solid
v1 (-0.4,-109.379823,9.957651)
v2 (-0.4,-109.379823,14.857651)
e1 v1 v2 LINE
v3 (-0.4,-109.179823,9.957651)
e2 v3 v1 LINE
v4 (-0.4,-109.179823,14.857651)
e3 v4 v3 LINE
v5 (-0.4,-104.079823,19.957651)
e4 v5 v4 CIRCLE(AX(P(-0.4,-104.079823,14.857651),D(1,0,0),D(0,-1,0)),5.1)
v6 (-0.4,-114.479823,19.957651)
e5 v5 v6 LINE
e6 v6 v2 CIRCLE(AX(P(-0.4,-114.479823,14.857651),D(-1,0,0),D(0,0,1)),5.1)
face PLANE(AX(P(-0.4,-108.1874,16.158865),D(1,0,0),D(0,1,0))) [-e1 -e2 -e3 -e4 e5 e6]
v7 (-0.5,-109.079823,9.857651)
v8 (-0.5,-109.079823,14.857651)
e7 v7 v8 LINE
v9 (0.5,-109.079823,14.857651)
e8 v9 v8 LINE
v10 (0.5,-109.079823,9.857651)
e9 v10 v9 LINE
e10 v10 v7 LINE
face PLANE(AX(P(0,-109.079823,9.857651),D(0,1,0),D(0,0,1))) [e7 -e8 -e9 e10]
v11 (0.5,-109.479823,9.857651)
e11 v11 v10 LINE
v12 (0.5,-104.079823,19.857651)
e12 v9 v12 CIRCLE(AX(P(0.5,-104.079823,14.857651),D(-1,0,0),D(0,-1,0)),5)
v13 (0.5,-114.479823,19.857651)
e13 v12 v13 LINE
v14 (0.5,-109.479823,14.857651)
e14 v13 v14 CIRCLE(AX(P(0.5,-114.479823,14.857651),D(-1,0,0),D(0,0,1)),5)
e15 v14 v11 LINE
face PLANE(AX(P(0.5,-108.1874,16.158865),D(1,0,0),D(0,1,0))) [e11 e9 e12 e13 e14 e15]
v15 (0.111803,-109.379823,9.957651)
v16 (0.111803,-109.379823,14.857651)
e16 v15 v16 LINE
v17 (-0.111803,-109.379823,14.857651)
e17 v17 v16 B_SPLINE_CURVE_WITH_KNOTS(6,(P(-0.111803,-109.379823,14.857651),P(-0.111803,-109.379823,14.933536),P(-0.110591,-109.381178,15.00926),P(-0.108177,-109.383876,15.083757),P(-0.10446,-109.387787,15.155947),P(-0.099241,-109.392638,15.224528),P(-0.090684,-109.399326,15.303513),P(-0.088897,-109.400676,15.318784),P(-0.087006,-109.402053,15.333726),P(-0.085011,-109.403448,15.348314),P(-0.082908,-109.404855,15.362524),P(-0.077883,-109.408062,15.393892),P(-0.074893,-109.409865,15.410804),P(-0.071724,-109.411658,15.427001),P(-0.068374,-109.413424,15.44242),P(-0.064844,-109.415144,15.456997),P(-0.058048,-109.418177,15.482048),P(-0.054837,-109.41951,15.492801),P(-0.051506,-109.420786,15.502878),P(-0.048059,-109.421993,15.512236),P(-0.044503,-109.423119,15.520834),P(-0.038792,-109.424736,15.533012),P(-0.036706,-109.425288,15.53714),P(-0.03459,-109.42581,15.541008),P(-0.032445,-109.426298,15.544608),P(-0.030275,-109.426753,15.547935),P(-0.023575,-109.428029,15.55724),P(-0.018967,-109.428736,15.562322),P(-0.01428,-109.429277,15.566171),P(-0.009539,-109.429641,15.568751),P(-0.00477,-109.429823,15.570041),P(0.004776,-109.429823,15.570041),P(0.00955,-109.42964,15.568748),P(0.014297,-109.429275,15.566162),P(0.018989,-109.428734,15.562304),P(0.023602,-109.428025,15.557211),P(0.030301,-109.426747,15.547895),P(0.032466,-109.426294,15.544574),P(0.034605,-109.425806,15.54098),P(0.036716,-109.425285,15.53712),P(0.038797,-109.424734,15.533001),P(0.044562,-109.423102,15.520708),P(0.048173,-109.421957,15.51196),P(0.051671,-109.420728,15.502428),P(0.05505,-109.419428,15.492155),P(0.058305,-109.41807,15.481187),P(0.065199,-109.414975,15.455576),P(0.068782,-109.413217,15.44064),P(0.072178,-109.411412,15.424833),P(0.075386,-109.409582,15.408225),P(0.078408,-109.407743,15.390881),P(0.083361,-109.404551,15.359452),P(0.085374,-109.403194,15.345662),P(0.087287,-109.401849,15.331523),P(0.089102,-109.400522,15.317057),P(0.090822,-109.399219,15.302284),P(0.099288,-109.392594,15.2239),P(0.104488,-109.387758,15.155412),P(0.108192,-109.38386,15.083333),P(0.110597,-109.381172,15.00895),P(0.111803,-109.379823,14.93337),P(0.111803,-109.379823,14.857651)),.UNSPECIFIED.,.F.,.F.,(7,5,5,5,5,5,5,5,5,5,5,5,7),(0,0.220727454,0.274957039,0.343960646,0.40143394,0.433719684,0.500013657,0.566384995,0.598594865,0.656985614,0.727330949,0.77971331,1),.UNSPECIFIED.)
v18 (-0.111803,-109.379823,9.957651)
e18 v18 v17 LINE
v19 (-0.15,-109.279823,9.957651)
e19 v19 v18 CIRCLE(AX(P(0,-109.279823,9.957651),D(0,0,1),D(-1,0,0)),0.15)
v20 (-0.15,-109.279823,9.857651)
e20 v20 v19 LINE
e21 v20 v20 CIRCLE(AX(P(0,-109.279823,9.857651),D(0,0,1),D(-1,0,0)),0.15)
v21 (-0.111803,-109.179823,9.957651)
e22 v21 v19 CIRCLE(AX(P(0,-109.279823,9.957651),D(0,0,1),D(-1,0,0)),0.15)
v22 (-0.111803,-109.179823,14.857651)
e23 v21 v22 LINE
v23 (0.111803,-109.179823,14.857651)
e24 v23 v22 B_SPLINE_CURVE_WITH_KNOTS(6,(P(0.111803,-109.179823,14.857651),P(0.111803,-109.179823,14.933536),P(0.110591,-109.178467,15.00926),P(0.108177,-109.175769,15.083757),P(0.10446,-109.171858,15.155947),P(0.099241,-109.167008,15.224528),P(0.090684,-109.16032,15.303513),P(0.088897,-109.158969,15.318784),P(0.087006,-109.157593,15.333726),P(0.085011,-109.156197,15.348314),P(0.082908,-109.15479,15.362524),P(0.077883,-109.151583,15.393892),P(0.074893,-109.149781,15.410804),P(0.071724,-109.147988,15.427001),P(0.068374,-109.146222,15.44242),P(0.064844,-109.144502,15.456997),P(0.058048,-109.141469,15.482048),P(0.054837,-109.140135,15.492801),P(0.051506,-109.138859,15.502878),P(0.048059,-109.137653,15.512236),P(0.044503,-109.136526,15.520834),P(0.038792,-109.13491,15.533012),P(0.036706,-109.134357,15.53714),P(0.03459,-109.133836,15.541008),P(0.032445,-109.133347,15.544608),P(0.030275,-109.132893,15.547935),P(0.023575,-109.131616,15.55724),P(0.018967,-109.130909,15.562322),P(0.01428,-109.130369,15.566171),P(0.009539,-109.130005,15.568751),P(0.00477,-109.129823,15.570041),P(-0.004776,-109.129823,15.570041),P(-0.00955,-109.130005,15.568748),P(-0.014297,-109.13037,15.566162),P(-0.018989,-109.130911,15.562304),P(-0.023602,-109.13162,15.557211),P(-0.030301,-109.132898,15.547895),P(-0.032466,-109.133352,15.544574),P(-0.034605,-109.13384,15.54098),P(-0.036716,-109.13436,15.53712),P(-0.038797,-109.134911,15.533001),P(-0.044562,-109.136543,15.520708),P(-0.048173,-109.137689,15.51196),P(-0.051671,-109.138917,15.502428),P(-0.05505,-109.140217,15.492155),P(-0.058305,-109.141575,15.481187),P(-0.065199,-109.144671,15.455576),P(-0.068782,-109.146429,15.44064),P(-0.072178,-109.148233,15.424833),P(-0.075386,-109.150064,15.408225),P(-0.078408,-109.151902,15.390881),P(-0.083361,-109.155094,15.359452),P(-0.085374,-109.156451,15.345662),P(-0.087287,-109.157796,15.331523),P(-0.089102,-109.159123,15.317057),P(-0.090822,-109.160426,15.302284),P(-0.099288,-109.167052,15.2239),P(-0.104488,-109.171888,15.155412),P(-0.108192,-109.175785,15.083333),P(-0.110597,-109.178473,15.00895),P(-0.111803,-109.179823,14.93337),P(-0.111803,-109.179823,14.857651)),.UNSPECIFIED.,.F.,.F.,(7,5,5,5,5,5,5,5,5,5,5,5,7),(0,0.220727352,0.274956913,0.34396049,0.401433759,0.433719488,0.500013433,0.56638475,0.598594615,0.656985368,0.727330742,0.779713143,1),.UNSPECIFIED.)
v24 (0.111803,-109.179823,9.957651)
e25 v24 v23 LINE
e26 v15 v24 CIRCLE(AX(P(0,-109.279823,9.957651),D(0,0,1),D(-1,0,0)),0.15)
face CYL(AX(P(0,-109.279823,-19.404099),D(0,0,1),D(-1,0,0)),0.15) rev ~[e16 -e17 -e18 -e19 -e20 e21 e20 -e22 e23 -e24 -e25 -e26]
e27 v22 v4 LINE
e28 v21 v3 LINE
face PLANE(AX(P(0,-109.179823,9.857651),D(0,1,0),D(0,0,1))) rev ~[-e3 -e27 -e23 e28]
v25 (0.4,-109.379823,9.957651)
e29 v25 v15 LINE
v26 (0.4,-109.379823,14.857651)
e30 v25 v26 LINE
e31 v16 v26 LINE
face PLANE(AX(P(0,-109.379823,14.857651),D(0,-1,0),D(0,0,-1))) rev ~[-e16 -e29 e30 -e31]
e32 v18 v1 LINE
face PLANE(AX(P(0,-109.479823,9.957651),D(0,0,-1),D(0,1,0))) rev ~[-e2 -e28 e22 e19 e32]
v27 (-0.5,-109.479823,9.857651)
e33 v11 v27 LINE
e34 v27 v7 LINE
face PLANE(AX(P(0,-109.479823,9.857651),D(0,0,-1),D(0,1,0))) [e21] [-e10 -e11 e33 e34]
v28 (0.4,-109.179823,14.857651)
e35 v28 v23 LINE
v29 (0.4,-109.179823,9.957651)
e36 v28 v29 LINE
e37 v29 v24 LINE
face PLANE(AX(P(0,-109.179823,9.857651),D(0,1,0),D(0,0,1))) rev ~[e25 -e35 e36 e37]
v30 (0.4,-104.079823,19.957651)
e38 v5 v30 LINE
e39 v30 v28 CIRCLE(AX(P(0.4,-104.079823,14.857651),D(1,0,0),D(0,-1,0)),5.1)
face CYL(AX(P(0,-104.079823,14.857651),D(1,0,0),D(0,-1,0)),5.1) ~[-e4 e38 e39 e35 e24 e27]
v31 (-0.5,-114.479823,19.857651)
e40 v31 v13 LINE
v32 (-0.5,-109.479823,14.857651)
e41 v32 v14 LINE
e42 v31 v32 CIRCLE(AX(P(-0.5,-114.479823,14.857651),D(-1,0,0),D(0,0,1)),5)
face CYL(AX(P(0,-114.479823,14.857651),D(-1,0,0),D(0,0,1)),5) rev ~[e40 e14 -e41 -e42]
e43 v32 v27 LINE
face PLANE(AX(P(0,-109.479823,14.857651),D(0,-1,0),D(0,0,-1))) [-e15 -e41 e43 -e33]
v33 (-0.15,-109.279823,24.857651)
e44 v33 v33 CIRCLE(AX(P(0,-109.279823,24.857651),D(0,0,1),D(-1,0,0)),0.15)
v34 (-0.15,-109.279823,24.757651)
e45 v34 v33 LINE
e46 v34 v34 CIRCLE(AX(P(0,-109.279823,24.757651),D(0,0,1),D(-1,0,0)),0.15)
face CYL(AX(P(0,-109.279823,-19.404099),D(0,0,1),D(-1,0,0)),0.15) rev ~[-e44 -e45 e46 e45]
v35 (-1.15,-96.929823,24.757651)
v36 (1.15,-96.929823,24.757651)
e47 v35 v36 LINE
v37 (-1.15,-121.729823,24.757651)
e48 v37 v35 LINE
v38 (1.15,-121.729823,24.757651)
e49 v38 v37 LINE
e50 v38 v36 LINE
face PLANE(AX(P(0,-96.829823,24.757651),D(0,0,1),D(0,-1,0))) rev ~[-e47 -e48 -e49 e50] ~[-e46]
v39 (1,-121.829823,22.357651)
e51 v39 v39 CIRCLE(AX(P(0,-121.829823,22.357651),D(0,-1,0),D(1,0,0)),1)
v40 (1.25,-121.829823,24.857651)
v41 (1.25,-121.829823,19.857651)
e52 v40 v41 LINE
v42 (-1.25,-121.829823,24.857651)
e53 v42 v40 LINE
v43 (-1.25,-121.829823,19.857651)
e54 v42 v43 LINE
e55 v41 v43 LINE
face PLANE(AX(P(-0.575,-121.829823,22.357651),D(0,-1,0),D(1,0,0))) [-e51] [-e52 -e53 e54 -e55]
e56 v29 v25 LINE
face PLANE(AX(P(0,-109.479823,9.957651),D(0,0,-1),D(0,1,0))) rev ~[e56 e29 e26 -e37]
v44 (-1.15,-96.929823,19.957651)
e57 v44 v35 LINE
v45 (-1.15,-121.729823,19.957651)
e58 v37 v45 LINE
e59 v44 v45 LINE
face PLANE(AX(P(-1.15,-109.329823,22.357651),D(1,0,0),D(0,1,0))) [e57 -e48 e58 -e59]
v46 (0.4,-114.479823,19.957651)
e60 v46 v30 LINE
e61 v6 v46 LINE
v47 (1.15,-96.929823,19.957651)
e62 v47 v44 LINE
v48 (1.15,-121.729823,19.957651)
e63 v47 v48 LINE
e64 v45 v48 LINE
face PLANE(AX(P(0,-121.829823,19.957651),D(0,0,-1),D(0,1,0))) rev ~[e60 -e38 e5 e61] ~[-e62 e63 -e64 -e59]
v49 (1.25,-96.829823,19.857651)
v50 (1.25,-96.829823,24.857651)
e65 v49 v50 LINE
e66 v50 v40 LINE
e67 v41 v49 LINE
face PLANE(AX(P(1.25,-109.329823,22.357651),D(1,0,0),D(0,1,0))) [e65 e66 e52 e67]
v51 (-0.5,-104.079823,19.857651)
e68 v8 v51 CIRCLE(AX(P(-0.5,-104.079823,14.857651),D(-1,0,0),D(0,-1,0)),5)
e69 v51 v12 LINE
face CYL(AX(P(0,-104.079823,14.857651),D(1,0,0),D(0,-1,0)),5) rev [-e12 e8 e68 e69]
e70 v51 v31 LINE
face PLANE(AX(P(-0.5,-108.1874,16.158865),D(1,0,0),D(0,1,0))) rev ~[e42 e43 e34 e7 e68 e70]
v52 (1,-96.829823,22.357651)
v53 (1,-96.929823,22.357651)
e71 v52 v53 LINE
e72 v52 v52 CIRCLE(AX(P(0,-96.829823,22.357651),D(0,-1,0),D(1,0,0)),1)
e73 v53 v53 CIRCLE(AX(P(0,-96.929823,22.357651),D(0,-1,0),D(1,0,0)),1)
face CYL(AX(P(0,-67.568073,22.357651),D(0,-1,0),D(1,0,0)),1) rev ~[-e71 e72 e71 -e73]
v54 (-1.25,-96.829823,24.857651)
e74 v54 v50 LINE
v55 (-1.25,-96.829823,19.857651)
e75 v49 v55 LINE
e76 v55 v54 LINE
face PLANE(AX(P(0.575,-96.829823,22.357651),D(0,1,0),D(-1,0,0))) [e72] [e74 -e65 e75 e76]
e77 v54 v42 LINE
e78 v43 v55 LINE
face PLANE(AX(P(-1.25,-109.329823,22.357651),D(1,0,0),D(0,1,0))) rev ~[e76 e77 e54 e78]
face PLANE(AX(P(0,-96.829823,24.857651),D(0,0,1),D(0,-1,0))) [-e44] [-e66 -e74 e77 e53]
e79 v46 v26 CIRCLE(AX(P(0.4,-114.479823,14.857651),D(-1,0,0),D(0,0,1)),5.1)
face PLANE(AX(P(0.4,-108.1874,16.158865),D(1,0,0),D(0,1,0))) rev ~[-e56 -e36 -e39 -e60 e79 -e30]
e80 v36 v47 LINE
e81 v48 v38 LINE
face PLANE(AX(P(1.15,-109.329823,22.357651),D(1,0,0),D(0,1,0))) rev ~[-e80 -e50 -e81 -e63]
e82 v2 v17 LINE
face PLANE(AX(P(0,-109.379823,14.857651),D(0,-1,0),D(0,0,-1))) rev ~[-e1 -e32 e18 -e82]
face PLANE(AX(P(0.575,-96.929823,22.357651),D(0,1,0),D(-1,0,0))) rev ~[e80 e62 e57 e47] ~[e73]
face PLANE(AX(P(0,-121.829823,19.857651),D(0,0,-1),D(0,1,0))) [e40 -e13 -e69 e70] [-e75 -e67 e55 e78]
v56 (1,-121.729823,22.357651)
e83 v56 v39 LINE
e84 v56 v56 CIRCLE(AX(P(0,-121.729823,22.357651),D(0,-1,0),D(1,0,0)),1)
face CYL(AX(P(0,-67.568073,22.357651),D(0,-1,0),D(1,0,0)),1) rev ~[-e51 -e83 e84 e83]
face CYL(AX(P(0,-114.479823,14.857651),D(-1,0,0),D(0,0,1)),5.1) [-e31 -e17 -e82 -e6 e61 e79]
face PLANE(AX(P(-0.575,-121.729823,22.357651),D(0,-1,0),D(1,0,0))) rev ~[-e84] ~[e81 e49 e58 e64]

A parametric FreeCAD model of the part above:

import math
import FreeCAD as App
import Part
import Sketcher

V = App.Vector


def faces_at(feature, points):
    """Names of the faces that lie closest to the given points."""
    faces = feature.Shape.Faces
    near = lambda p: min(range(len(faces)), key=lambda i: faces[i].distToShape(Part.Vertex(*p))[0])
    return sorted({f"Face{near(p) + 1}" for p in points})

doc = App.newDocument("Part")
body = doc.addObject("PartDesign::Body", "Body")

sketch1 = doc.addObject("Sketcher::SketchObject", "Sketch")
body.addObject(sketch1)
sketch1.AttachmentSupport = (doc.YZ_Plane, [""])
sketch1.MapMode = "FlatFace"
sketch1.addGeometry([
    Part.LineSegment(V(-97, 20, 0), V(-97, 25, 0)),
    Part.LineSegment(V(-97, 25, 0), V(-122, 25, 0)),
    Part.LineSegment(V(-122, 25, 0), V(-122, 20, 0)),
    Part.LineSegment(V(-122, 20, 0), V(-97, 20, 0)),
], False)
sketch1.addConstraint([
    Sketcher.Constraint("Coincident", 0, 2, 1, 1),
    Sketcher.Constraint("Coincident", 1, 2, 2, 1),
    Sketcher.Constraint("Coincident", 2, 2, 3, 1),
    Sketcher.Constraint("Coincident", 3, 2, 0, 1),
    Sketcher.Constraint("Vertical", 0),
    Sketcher.Constraint("Horizontal", 1),
    Sketcher.Constraint("Vertical", 2),
    Sketcher.Constraint("Horizontal", 3),
    Sketcher.Constraint("DistanceX", 1, 2, 1, 1, 25.0),
    Sketcher.Constraint("DistanceY", 0, 1, 0, 2, 5.0),
    Sketcher.Constraint("DistanceY", -1, 1, 0, 2, 24.857651),
    Sketcher.Constraint("DistanceX", 0, 2, -1, 1, 96.829823),
])
pad1 = doc.addObject("PartDesign::Pad", "Pad")
body.addObject(pad1)
pad1.Profile = sketch1
pad1.Length = 2.5
pad1.Midplane = True

sketch2 = doc.addObject("Sketcher::SketchObject", "Sketch001")
body.addObject(sketch2)
sketch2.AttachmentSupport = (doc.YZ_Plane, [""])
sketch2.MapMode = "FlatFace"
sketch2.addGeometry([
    Part.ArcOfCircle(Part.Circle(V(-104.08, 14.86, 0), V(0, 0, 1), 5), math.radians(90), math.radians(180)),
    Part.LineSegment(V(-104.08, 19.86, 0), V(-114.48, 19.86, 0)),
    Part.ArcOfCircle(Part.Circle(V(-114.48, 14.86, 0), V(0, 0, 1), 5), math.radians(0), math.radians(90)),
    Part.LineSegment(V(-109.48, 14.86, 0), V(-109.48, 9.86, 0)),
    Part.LineSegment(V(-109.48, 9.86, 0), V(-109.08, 9.86, 0)),
    Part.LineSegment(V(-109.08, 9.86, 0), V(-109.08, 14.86, 0)),
], False)
sketch2.addConstraint([
    Sketcher.Constraint("Tangent", 0, 1, 1, 1),
    Sketcher.Constraint("Tangent", 1, 2, 2, 2),
    Sketcher.Constraint("Tangent", 2, 1, 3, 1),
    Sketcher.Constraint("Coincident", 3, 2, 4, 1),
    Sketcher.Constraint("Coincident", 4, 2, 5, 1),
    Sketcher.Constraint("Tangent", 5, 2, 0, 2),
    Sketcher.Constraint("Horizontal", 1),
    Sketcher.Constraint("Vertical", 3),
    Sketcher.Constraint("Horizontal", 4),
    Sketcher.Constraint("Vertical", 5),
    Sketcher.Constraint("Equal", 0, 2),
    Sketcher.Constraint("Radius", 0, 5.0),
    Sketcher.Constraint("DistanceY", 3, 2, 3, 1, 5.0),
    Sketcher.Constraint("DistanceX", 1, 2, 1, 1, 10.4),
    Sketcher.Constraint("DistanceY", -1, 1, 0, 3, 14.857651),
    Sketcher.Constraint("DistanceX", 0, 3, -1, 1, 104.079823),
])
pad2 = doc.addObject("PartDesign::Pad", "Pad001")
body.addObject(pad2)
pad2.Profile = sketch2
pad2.Length = 0.5

sketch3 = doc.addObject("Sketcher::SketchObject", "Sketch002")
body.addObject(sketch3)
sketch3.AttachmentSupport = (doc.YZ_Plane, [""])
sketch3.MapMode = "FlatFace"
sketch3.addGeometry([
    Part.ArcOfCircle(Part.Circle(V(-104.08, 14.86, 0), V(0, 0, 1), 5), math.radians(90), math.radians(180)),
    Part.LineSegment(V(-104.08, 19.86, 0), V(-114.48, 19.86, 0)),
    Part.ArcOfCircle(Part.Circle(V(-114.48, 14.86, 0), V(0, 0, 1), 5), math.radians(0), math.radians(90)),
    Part.LineSegment(V(-109.48, 14.86, 0), V(-109.48, 9.86, 0)),
    Part.LineSegment(V(-109.48, 9.86, 0), V(-109.08, 9.86, 0)),
    Part.LineSegment(V(-109.08, 9.86, 0), V(-109.08, 14.86, 0)),
], False)
sketch3.addConstraint([
    Sketcher.Constraint("Tangent", 0, 1, 1, 1),
    Sketcher.Constraint("Tangent", 1, 2, 2, 2),
    Sketcher.Constraint("Tangent", 2, 1, 3, 1),
    Sketcher.Constraint("Coincident", 3, 2, 4, 1),
    Sketcher.Constraint("Coincident", 4, 2, 5, 1),
    Sketcher.Constraint("Tangent", 5, 2, 0, 2),
    Sketcher.Constraint("Horizontal", 1),
    Sketcher.Constraint("Vertical", 3),
    Sketcher.Constraint("Horizontal", 4),
    Sketcher.Constraint("Vertical", 5),
    Sketcher.Constraint("Equal", 0, 2),
    Sketcher.Constraint("Radius", 0, 5.0),
    Sketcher.Constraint("DistanceY", 3, 2, 3, 1, 5.0),
    Sketcher.Constraint("DistanceX", 1, 2, 1, 1, 10.4),
    Sketcher.Constraint("DistanceY", -1, 1, 0, 3, 14.857651),
    Sketcher.Constraint("DistanceX", 0, 3, -1, 1, 104.079823),
])
pad3 = doc.addObject("PartDesign::Pad", "Pad002")
body.addObject(pad3)
pad3.Profile = sketch3
pad3.Length = 0.5
pad3.Reversed = True
doc.recompute()

thickness = doc.addObject("PartDesign::Thickness", "Thickness")
body.addObject(thickness)
thickness.Base = (pad3, faces_at(pad3, [(0, -96.83, 22.358), (0, -121.83, 22.358)]))
thickness.Value = 0.1
thickness.Reversed = True
thickness.Join = "Intersection"

sketch4 = doc.addObject("Sketcher::SketchObject", "Sketch003")
body.addObject(sketch4)
sketch4.AttachmentSupport = (doc.XZ_Plane, [""])
sketch4.MapMode = "FlatFace"
sketch4.AttachmentOffset = App.Placement(V(0, 0, 121.829823), App.Rotation())
sketch4.addGeometry([
    Part.LineSegment(V(-1.1, 24.8, 0), V(-1.1, 20, 0)),
    Part.LineSegment(V(-1.1, 20, 0), V(1.1, 20, 0)),
    Part.LineSegment(V(1.1, 20, 0), V(1.1, 24.8, 0)),
    Part.LineSegment(V(1.1, 24.8, 0), V(-1.1, 24.8, 0)),
], False)
sketch4.addConstraint([
    Sketcher.Constraint("Coincident", 0, 2, 1, 1),
    Sketcher.Constraint("Coincident", 1, 2, 2, 1),
    Sketcher.Constraint("Coincident", 2, 2, 3, 1),
    Sketcher.Constraint("Coincident", 3, 2, 0, 1),
    Sketcher.Constraint("Vertical", 0),
    Sketcher.Constraint("Horizontal", 1),
    Sketcher.Constraint("Vertical", 2),
    Sketcher.Constraint("Horizontal", 3),
    Sketcher.Constraint("DistanceX", 1, 1, 1, 2, 2.3),
    Sketcher.Constraint("DistanceY", 0, 2, 0, 1, 4.8),
    Sketcher.Constraint("DistanceX", 0, 2, -1, 1, 1.15),
    Sketcher.Constraint("DistanceY", -1, 1, 0, 2, 19.957651),
])
pad4 = doc.addObject("PartDesign::Pad", "Pad003")
body.addObject(pad4)
pad4.Profile = sketch4
pad4.Length = 0.1
pad4.Reversed = True

sketch5 = doc.addObject("Sketcher::SketchObject", "Sketch004")
body.addObject(sketch5)
sketch5.AttachmentSupport = (doc.XZ_Plane, [""])
sketch5.MapMode = "FlatFace"
sketch5.AttachmentOffset = App.Placement(V(0, 0, 96.829823), App.Rotation())
sketch5.addGeometry([
    Part.LineSegment(V(1.1, 24.8, 0), V(1.1, 20, 0)),
    Part.LineSegment(V(1.1, 20, 0), V(-1.1, 20, 0)),
    Part.LineSegment(V(-1.1, 20, 0), V(-1.1, 24.8, 0)),
    Part.LineSegment(V(-1.1, 24.8, 0), V(1.1, 24.8, 0)),
], False)
sketch5.addConstraint([
    Sketcher.Constraint("Coincident", 0, 2, 1, 1),
    Sketcher.Constraint("Coincident", 1, 2, 2, 1),
    Sketcher.Constraint("Coincident", 2, 2, 3, 1),
    Sketcher.Constraint("Coincident", 3, 2, 0, 1),
    Sketcher.Constraint("Vertical", 0),
    Sketcher.Constraint("Horizontal", 1),
    Sketcher.Constraint("Vertical", 2),
    Sketcher.Constraint("Horizontal", 3),
    Sketcher.Constraint("DistanceX", 1, 2, 1, 1, 2.3),
    Sketcher.Constraint("DistanceY", 0, 2, 0, 1, 4.8),
    Sketcher.Constraint("DistanceX", -1, 1, 0, 2, 1.15),
    Sketcher.Constraint("DistanceY", -1, 1, 0, 2, 19.957651),
])
pad5 = doc.addObject("PartDesign::Pad", "Pad004")
body.addObject(pad5)
pad5.Profile = sketch5
pad5.Length = 0.1

sketch6 = doc.addObject("Sketcher::SketchObject", "Sketch005")
body.addObject(sketch6)
sketch6.AttachmentSupport = (doc.XZ_Plane, [""])
sketch6.MapMode = "FlatFace"
sketch6.AttachmentOffset = App.Placement(V(0, 0, 96.829823), App.Rotation())
sketch6.addGeometry(Part.Circle(V(0, 22.4, 0), V(0, 0, 1), 1), False)
sketch6.addConstraint([
    Sketcher.Constraint("PointOnObject", 0, 3, -2),
    Sketcher.Constraint("Diameter", 0, 2.0),
    Sketcher.Constraint("DistanceY", -1, 1, 0, 3, 22.357651),
])
doc.recompute()
hole = doc.addObject("PartDesign::Hole", "Hole")
body.addObject(hole)
hole.Profile = sketch6
hole.ThreadType = "None"
hole.Diameter = 2
hole.DepthType = "ThroughAll"
hole.Reversed = True

sketch7 = doc.addObject("Sketcher::SketchObject", "Sketch006")
body.addObject(sketch7)
sketch7.AttachmentSupport = (doc.XY_Plane, [""])
sketch7.MapMode = "FlatFace"
sketch7.AttachmentOffset = App.Placement(V(0, 0, 9.857651), App.Rotation())
sketch7.addGeometry(Part.Circle(V(0, -109.279823, 0), V(0, 0, 1), 0.15), False)
sketch7.addConstraint([
    Sketcher.Constraint("PointOnObject", 0, 3, -2),
    Sketcher.Constraint("Diameter", 0, 0.3),
    Sketcher.Constraint("DistanceY", 0, 3, -1, 1, 109.279823),
])
doc.recompute()
hole2 = doc.addObject("PartDesign::Hole", "Hole001")
body.addObject(hole2)
hole2.Profile = sketch7
hole2.ThreadType = "None"
hole2.Diameter = 0.3
hole2.DepthType = "ThroughAll"
hole2.Reversed = True

doc.recompute()
